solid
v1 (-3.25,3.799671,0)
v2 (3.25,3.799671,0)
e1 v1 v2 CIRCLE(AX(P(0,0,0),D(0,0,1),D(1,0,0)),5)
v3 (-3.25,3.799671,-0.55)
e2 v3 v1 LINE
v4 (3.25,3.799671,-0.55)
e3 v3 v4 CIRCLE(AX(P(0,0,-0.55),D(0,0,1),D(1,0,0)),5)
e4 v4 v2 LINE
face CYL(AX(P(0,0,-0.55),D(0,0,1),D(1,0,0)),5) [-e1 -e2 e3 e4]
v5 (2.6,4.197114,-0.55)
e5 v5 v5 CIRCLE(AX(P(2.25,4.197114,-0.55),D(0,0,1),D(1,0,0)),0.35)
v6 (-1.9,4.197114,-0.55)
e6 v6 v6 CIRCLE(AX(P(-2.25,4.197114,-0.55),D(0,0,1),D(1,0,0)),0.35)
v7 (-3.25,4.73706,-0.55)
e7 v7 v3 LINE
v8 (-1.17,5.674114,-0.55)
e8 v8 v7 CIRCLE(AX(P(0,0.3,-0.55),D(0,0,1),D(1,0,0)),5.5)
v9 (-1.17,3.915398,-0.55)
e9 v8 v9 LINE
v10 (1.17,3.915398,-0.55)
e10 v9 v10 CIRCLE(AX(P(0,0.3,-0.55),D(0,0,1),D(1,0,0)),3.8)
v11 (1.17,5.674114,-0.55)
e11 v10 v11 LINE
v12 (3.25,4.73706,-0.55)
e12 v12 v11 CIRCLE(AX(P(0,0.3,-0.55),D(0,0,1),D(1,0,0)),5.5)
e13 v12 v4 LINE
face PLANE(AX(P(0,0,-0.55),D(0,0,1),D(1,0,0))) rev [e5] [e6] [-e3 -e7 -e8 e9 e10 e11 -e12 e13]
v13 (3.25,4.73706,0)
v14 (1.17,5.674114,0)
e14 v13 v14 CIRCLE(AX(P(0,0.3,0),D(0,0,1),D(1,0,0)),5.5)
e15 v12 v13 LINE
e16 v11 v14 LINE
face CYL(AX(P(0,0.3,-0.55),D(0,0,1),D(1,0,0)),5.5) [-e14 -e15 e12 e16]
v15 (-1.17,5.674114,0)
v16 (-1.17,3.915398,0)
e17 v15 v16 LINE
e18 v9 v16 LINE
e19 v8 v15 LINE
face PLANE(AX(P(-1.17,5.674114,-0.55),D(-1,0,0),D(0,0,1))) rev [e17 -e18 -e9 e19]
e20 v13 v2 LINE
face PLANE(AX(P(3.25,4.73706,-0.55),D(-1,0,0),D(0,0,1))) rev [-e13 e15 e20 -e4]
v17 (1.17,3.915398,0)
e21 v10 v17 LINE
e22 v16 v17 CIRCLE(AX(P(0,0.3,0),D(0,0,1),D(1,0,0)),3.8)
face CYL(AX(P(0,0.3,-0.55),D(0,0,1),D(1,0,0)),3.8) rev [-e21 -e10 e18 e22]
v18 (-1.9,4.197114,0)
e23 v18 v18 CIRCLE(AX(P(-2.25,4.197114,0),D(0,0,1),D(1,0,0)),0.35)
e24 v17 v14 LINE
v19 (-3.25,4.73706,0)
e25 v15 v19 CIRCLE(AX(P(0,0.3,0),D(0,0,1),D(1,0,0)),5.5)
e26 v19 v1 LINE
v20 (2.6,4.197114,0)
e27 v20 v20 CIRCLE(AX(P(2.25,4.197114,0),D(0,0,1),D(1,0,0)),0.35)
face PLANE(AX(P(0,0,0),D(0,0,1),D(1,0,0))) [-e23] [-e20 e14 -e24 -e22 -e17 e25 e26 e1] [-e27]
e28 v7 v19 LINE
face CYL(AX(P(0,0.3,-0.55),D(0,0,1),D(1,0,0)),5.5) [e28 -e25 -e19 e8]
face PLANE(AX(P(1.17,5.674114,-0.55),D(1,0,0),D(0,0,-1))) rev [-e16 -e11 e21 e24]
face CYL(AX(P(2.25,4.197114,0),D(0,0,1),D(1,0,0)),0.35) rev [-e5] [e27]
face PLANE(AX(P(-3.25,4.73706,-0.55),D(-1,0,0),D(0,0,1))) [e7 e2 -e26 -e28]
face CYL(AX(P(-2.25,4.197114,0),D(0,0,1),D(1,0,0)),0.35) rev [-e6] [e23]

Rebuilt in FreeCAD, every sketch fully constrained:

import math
import FreeCAD as App
import Part
import Sketcher

V = App.Vector

doc = App.newDocument("Part")
body = doc.addObject("PartDesign::Body", "Body")

# Sketch on XY plane
sketch1 = body.newObject("Sketcher::SketchObject", "Sketch")
sketch1.AttachmentSupport = (doc.getObject("XY_Plane"), [""])
sketch1.MapMode = "FlatFace"
sketch1.addGeometry([
    Part.LineSegment(V(-3.25, 4.73706, 0), V(-3.25, 3.799671, 0)),
    Part.ArcOfCircle(Part.Circle(V(0, 0, 0), V(0, 0, 1), 5), math.radians(130.541602), math.radians(409.458398)),
    Part.LineSegment(V(3.25, 3.799671, 0), V(3.25, 4.73706, 0)),
    Part.ArcOfCircle(Part.Circle(V(0, 0.3, 0), V(0, 0, 1), 5.5), math.radians(53.778453), math.radians(126.221547)),
], False)
sketch1.addConstraint([
    Sketcher.Constraint("Coincident", 0, 2, 1, 1),
    Sketcher.Constraint("Coincident", 1, 2, 2, 1),
    Sketcher.Constraint("Coincident", 2, 2, 3, 1),
    Sketcher.Constraint("Coincident", 3, 2, 0, 1),
    Sketcher.Constraint("Vertical", 0),
    Sketcher.Constraint("Vertical", 2),
    Sketcher.Constraint("Coincident", 1, 3, -1, 1),
    Sketcher.Constraint("Symmetric", 2, 2, 3, 2, -2),
    Sketcher.Constraint("Radius", 1, 5.0),
    Sketcher.Constraint("Radius", 3, 5.5),
    Sketcher.Constraint("DistanceY", -1, 1, 3, 3, 0.3),
    Sketcher.Constraint("DistanceX", 0, 2, 1, 2, 6.5),
])
pad1 = body.newObject("PartDesign::Pad", "Pad")
pad1.Profile = sketch1
pad1.Length = 0.55
pad1.Reversed = True

# Sketch on XY plane
sketch2 = body.newObject("Sketcher::SketchObject", "Sketch001")
sketch2.AttachmentSupport = (doc.getObject("XY_Plane"), [""])
sketch2.MapMode = "FlatFace"
sketch2.addGeometry(Part.Circle(V(0, 0.3, 0), V(0, 0, 1), 3.8), False)
sketch2.addConstraint([
    Sketcher.Constraint("PointOnObject", 0, 3, -2),
    Sketcher.Constraint("Diameter", 0, 7.6),
    Sketcher.Constraint("DistanceY", -1, 1, 0, 3, 0.3),
])
pocket1 = body.newObject("PartDesign::Pocket", "Pocket")
pocket1.Profile = sketch2
pocket1.Type = "ThroughAll"

# Sketch on XY plane
sketch3 = body.newObject("Sketcher::SketchObject", "Sketch002")
sketch3.AttachmentSupport = (doc.getObject("XY_Plane"), [""])
sketch3.MapMode = "FlatFace"
sketch3.addGeometry([
    Part.LineSegment(V(-1.17, 5.674114, 0), V(-1.17, 3.915398, 0)),
    Part.ArcOfCircle(Part.Circle(V(0, 0.3, 0), V(0, 0, 1), 3.8), math.radians(72.067597), math.radians(107.932403)),
    Part.LineSegment(V(1.17, 3.915398, 0), V(1.17, 5.674114, 0)),
    Part.ArcOfCircle(Part.Circle(V(0, 0.3, 0), V(0, 0, 1), 5.5), math.radians(77.717775), math.radians(102.282225)),
], False)
sketch3.addConstraint([
    Sketcher.Constraint("Coincident", 0, 2, 1, 2),
    Sketcher.Constraint("Coincident", 1, 1, 2, 1),
    Sketcher.Constraint("Coincident", 2, 2, 3, 1),
    Sketcher.Constraint("Coincident", 3, 2, 0, 1),
    Sketcher.Constraint("Vertical", 0),
    Sketcher.Constraint("Vertical", 2),
    Sketcher.Constraint("Coincident", 3, 3, 1, 3),
    Sketcher.Constraint("Symmetric", 0, 2, 1, 1, -2),
    Sketcher.Constraint("Radius", 1, 3.8),
    Sketcher.Constraint("Radius", 3, 5.5),
    Sketcher.Constraint("DistanceY", -1, 1, 1, 3, 0.3),
    Sketcher.Constraint("DistanceX", 0, 2, -1, 1, 1.17),
])
pocket2 = body.newObject("PartDesign::Pocket", "Pocket001")
pocket2.Profile = sketch3
pocket2.Type = "ThroughAll"

# Sketch on XY plane
sketch4 = body.newObject("Sketcher::SketchObject", "Sketch003")
sketch4.AttachmentSupport = (doc.getObject("XY_Plane"), [""])
sketch4.MapMode = "FlatFace"
sketch4.addGeometry([
    Part.Circle(V(-2.25, 4.197114, 0), V(0, 0, 1), 0.35),
    Part.Circle(V(2.25, 4.197114, 0), V(0, 0, 1), 0.35),
], False)
sketch4.addConstraint([
    Sketcher.Constraint("Equal", 0, 1),
    Sketcher.Constraint("Symmetric", 0, 3, 1, 3, -2),
    Sketcher.Constraint("Diameter", 0, 0.7),
    Sketcher.Constraint("DistanceX", 0, 3, 1, 3, 4.5),
    Sketcher.Constraint("DistanceY", -1, 1, 0, 3, 4.197114),
])
doc.recompute()
hole = body.newObject("PartDesign::Hole", "Hole")
hole.Profile = sketch4
hole.ThreadType = "None"
hole.Diameter = 0.7
hole.DepthType = "Dimension"
hole.Depth = 0.55
hole.DrillPoint = "Flat"

doc.recompute()
